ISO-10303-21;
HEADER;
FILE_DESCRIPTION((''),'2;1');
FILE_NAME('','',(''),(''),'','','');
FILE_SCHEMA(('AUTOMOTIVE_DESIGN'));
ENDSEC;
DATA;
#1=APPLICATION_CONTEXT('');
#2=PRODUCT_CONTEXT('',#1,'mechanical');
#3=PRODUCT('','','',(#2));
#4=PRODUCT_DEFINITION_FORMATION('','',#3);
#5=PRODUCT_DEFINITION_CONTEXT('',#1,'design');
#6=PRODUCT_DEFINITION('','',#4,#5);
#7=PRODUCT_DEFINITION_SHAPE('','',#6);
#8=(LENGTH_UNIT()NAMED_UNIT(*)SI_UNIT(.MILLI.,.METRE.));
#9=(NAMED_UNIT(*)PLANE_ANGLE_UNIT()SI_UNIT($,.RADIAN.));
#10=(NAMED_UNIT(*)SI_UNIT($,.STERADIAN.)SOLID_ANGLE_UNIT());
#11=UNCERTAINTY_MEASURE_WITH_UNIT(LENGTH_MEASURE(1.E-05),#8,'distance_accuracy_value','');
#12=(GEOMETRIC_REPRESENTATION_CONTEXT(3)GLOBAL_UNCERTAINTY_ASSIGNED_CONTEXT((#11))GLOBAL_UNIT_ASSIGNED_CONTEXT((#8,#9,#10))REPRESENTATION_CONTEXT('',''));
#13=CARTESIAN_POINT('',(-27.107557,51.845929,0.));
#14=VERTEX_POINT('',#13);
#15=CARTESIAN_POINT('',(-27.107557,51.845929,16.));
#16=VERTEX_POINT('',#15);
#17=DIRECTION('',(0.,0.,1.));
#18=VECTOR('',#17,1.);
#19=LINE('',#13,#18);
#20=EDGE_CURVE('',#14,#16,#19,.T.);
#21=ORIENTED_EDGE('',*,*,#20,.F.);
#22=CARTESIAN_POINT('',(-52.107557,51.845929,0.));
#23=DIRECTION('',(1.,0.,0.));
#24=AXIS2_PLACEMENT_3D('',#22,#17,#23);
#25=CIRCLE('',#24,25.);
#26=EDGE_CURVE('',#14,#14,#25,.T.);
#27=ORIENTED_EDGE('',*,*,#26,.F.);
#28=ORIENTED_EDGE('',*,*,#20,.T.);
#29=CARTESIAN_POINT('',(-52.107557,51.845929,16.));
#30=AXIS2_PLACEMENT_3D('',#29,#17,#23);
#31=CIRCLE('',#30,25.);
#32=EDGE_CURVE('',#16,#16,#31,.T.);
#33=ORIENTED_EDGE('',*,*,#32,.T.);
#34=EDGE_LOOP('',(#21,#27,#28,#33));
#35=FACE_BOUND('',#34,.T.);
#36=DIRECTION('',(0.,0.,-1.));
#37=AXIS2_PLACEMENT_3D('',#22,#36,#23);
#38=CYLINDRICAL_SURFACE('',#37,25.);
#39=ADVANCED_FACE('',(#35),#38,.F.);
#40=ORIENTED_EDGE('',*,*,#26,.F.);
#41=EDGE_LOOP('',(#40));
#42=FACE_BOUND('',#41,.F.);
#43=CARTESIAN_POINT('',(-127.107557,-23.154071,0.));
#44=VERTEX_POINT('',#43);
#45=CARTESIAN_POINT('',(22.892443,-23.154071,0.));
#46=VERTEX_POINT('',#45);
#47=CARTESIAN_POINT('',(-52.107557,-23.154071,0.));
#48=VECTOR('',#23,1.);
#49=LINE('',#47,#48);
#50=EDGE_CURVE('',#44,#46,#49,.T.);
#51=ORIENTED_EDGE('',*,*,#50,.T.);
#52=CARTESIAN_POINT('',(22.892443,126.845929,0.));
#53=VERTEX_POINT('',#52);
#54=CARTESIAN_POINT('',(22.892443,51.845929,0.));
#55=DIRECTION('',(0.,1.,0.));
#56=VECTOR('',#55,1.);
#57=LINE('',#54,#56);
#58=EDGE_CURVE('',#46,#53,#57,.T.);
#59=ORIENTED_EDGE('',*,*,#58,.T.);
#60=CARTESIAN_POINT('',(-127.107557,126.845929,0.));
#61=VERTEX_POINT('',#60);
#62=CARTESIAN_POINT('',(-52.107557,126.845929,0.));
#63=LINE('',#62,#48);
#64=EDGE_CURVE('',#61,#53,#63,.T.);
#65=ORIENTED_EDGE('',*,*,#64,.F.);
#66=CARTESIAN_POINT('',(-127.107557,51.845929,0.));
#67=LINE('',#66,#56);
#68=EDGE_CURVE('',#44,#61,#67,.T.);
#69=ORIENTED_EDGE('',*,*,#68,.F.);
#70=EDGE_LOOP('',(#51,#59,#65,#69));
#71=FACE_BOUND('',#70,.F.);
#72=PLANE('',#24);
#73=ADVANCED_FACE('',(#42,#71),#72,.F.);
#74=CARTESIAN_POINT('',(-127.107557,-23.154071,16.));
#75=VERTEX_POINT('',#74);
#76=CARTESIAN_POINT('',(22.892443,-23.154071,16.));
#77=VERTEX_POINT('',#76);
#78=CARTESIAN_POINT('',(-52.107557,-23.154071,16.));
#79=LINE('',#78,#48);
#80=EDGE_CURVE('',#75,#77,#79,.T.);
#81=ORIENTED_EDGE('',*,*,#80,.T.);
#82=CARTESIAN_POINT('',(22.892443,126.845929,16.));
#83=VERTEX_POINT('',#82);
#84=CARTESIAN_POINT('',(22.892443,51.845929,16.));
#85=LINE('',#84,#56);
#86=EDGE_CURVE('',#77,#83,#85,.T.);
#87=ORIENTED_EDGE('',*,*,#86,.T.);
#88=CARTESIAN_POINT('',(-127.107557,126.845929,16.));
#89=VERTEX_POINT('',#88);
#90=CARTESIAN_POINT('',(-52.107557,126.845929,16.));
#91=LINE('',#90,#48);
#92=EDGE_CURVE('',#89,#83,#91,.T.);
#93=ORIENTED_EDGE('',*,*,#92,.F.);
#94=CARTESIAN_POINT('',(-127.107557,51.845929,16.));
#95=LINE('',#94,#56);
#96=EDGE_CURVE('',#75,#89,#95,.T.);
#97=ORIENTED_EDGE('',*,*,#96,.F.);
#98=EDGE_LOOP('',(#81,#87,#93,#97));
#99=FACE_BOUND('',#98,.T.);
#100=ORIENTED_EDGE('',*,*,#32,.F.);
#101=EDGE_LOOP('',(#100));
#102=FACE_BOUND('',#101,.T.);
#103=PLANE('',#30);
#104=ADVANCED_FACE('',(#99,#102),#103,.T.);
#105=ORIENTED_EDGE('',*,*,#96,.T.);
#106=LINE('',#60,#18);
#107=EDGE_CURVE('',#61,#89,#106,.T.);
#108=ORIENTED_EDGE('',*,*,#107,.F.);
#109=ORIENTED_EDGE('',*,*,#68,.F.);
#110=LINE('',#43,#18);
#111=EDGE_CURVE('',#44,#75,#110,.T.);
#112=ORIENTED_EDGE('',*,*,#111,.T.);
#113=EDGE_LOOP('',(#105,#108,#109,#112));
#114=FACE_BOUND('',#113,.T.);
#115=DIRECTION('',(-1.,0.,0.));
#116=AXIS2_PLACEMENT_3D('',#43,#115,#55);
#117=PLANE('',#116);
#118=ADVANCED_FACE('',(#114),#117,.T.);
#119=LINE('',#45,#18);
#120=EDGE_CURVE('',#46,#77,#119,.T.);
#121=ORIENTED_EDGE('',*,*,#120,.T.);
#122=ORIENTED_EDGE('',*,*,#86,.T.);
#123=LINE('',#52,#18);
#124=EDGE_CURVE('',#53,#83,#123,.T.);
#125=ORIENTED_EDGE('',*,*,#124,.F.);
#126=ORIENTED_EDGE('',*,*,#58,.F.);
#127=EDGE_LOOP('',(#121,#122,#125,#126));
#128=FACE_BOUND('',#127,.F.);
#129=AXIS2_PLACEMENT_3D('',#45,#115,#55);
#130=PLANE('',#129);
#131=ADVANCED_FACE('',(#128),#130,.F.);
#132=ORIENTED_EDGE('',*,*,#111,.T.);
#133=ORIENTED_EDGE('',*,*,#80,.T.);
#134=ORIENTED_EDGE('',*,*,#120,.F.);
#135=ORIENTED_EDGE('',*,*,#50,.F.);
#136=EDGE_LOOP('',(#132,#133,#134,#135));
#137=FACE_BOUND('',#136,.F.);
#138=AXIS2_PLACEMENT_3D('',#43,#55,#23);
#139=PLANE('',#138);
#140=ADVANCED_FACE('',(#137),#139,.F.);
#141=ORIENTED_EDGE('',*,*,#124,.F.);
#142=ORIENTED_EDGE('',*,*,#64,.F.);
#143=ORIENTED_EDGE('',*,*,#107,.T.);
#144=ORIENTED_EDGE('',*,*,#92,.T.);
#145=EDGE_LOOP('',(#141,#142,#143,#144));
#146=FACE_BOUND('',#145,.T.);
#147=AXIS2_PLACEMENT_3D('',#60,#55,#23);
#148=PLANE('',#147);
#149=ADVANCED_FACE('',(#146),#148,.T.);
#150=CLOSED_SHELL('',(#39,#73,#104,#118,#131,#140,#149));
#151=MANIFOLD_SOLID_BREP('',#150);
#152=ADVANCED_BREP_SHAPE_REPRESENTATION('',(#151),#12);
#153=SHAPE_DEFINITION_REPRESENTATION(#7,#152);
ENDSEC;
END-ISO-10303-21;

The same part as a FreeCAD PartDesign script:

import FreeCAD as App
import Part
import Sketcher


def add_polygon(sketch, points):
    """Adds a closed chain of lines whose ends are joined by coincident constraints."""
    first, n = sketch.GeometryCount, len(points)
    for a, b in zip(points, points[1:] + points[:1]):
        sketch.addGeometry(Part.LineSegment(App.Vector(*a, 0), App.Vector(*b, 0)), False)
    for i in range(n):
        sketch.addConstraint(Sketcher.Constraint("Coincident", first + i, 2, first + (i + 1) % n, 1))

doc = App.newDocument("Part")
params = doc.addObject("Spreadsheet::Sheet", "Params")
for row, (alias, value) in enumerate([
    ("sketch1_diameter", "50 mm"),
    ("sketch1_width", "150 mm"),
    ("pad1_length", "16 mm"),
], start=1):
    params.set(f"A{row}", alias)
    params.set(f"B{row}", "=" + value)
    params.setAlias(f"B{row}", alias)

body = doc.addObject("PartDesign::Body", "Body")

sketch1 = doc.addObject("Sketcher::SketchObject", "Sketch")
body.addObject(sketch1)
sketch1.AttachmentSupport = (doc.XY_Plane, [""])
sketch1.MapMode = "FlatFace"
add_polygon(sketch1, [(-127, 127), (-127, -23), (23, -23), (23, 127)])
sketch1.addGeometry(Part.Circle(App.Vector(-52, 52, 0), App.Vector(0, 0, 1), 25), False)
sketch1.addConstraint([
    Sketcher.Constraint("Vertical", 0),
    Sketcher.Constraint("Horizontal", 1),
    Sketcher.Constraint("Vertical", 2),
    Sketcher.Constraint("Horizontal", 3),
    Sketcher.Constraint("Equal", 3, 0),
    Sketcher.Constraint("Diameter", 4, 50.0),
    Sketcher.Constraint("DistanceX", 1, 1, 1, 2, 150.0),
    Sketcher.Constraint("DistanceX", 0, 2, 4, 3, 75.0),
    Sketcher.Constraint("DistanceY", 0, 2, 4, 3, 75.0),
    Sketcher.Constraint("DistanceY", -1, 1, 4, 3, 51.845929),
    Sketcher.Constraint("DistanceX", 4, 3, -1, 1, 52.107557),
])
sketch1.setExpression("Constraints[9]", "Params.sketch1_diameter")
sketch1.setExpression("Constraints[10]", "Params.sketch1_width")
pad1 = doc.addObject("PartDesign::Pad", "Pad")
body.addObject(pad1)
pad1.Profile = sketch1
pad1.setExpression("Length", "Params.pad1_length")

doc.recompute()
